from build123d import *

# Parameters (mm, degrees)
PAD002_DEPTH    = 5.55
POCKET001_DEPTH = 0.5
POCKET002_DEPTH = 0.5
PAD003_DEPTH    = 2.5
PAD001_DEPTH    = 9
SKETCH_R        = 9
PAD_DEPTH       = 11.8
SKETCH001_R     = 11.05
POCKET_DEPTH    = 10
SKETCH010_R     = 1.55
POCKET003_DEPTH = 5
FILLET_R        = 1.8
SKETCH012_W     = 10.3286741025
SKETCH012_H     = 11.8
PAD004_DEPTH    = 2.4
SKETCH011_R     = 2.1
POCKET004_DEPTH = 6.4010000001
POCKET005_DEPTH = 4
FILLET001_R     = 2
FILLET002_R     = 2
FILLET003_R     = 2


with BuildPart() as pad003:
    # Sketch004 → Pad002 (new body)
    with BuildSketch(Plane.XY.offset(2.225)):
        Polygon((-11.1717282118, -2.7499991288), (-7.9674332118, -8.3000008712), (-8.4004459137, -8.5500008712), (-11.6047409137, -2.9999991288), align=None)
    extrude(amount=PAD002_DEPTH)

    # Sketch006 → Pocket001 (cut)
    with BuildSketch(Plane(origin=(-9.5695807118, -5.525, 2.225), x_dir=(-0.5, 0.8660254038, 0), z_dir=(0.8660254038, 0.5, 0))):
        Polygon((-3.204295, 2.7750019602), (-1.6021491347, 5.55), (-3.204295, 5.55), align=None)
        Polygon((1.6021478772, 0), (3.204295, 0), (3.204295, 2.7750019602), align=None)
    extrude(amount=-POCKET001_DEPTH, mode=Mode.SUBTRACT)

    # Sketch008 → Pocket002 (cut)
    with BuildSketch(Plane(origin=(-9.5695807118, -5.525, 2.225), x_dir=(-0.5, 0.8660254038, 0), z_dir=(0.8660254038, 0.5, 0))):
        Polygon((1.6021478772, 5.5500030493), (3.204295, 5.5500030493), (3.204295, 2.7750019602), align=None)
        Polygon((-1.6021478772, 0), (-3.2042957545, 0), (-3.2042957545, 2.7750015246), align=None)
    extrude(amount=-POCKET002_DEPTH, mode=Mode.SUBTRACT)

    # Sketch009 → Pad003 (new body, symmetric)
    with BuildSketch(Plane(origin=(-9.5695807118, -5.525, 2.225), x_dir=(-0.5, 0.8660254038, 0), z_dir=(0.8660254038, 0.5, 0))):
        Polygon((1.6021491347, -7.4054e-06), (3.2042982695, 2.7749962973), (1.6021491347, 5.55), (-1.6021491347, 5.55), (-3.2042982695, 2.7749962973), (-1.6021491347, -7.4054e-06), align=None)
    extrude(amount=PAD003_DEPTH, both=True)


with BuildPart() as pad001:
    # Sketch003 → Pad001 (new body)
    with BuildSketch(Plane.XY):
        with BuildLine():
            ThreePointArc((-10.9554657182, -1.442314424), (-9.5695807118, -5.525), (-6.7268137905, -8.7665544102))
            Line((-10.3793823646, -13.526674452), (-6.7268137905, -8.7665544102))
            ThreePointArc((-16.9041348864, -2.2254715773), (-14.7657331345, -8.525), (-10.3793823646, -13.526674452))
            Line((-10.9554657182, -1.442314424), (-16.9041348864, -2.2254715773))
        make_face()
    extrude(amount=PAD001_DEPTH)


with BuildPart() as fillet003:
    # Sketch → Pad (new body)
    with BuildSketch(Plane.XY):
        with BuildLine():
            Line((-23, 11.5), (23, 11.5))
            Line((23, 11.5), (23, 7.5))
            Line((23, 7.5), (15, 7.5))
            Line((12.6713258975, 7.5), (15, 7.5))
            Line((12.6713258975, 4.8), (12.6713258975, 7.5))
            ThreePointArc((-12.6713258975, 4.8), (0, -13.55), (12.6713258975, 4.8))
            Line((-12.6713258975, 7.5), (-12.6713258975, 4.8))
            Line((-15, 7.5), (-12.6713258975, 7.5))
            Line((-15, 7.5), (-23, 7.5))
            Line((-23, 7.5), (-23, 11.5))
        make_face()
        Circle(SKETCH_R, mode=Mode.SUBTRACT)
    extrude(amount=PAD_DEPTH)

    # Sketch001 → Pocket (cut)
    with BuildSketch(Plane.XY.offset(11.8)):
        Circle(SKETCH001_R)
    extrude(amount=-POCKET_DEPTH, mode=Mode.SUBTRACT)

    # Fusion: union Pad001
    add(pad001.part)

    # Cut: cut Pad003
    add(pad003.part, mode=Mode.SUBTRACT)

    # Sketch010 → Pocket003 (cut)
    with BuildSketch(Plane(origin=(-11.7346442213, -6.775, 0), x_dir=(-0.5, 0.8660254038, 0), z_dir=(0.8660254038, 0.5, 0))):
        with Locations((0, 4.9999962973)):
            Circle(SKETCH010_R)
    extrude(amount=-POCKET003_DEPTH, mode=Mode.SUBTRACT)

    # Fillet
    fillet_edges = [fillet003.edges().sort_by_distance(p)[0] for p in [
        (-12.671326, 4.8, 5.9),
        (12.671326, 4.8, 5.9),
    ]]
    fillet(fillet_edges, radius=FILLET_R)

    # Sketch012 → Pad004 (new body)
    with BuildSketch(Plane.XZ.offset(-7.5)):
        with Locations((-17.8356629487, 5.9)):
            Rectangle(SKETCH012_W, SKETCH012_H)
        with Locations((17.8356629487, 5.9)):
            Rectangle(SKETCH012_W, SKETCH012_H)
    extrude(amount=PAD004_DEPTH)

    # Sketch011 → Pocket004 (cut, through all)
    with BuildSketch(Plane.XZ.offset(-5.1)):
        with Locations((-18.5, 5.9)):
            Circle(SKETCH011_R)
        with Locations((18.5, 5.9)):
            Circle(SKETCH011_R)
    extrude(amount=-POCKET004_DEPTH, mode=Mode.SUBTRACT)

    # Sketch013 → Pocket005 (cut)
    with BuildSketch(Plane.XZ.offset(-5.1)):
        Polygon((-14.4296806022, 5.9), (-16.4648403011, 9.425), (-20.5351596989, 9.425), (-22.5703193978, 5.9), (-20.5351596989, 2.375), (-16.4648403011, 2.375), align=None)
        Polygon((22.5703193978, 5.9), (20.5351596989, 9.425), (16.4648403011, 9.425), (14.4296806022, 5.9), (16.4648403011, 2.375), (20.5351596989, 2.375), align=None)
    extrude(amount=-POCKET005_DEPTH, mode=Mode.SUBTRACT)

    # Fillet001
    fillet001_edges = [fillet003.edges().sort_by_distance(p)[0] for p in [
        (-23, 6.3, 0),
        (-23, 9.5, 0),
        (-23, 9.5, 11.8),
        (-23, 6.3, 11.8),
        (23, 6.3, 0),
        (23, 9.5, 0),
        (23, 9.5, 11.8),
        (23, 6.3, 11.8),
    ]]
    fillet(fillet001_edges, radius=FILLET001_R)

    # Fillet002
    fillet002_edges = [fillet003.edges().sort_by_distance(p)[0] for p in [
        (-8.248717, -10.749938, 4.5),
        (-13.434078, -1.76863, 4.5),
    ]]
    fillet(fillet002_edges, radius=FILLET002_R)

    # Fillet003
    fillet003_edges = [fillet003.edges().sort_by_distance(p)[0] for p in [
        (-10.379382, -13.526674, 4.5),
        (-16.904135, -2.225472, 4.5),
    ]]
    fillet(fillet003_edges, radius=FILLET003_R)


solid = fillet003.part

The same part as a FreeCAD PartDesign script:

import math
import FreeCAD as App
import Part
import Sketcher
from FreeCAD import Vector
Q = App.Units.Quantity


def edges_at(feature, points):
    """Names of the edges that pass closest to the given points."""
    edges = feature.Shape.Edges
    near = lambda p: min(range(len(edges)), key=lambda i: edges[i].distToShape(Part.Vertex(*p))[0])
    return sorted({f"Edge{near(p) + 1}" for p in points})


def add_polygon(sketch, points):
    """Adds a closed chain of lines whose ends are joined by coincident constraints."""
    first, n = sketch.GeometryCount, len(points)
    for a, b in zip(points, points[1:] + points[:1]):
        sketch.addGeometry(Part.LineSegment(App.Vector(*a, 0), App.Vector(*b, 0)), False)
    for i in range(n):
        sketch.addConstraint(Sketcher.Constraint("Coincident", first + i, 2, first + (i + 1) % n, 1))

doc = App.newDocument("Part")
body = doc.addObject("PartDesign::Body", "Body")

# Sketch on XY plane
sketch1 = doc.addObject("Sketcher::SketchObject", "Sketch")
body.addObject(sketch1)
sketch1.AttachmentSupport = (doc.XY_Plane, [""])
sketch1.MapMode = "FlatFace"
sketch1.AttachmentOffset = App.Placement(Vector(0, 0, 2.225), App.Rotation())
add_polygon(sketch1, [(-8, -8.3), (-11.2, -2.7), (-11.6, -3), (-8.4, -8.6)])  # lines 0-3
sketch1.addConstraint([
    Sketcher.Constraint("Perpendicular", 0, 1),
    Sketcher.Constraint("Perpendicular", 1, 2),
    Sketcher.Constraint("Perpendicular", 2, 3),
    Sketcher.Constraint("Angle", 0, Q("120 deg")),
    Sketcher.Constraint("DistanceY", 1, 2, -1, 1, Q("2.999999 mm")),
    Sketcher.Constraint("Distance", 1, Q("0.5 mm")),
    Sketcher.Constraint("DistanceY", 3, 2, -1, 1, Q("8.300001 mm")),
    Sketcher.Constraint("DistanceX", 0, 2, -1, 1, Q("11.171728 mm")),
])
pad1 = doc.addObject("PartDesign::Pad", "Pad")
body.addObject(pad1)
pad1.Profile = sketch1
pad1.Length = 5.55

# Sketch on an angled plane
sketch2 = doc.addObject("Sketcher::SketchObject", "Sketch001")
body.addObject(sketch2)
sketch2.Placement = App.Placement(Vector(-9.569581, -5.525, 2.225), App.Rotation(Vector(-0.5, 0.866025404, 0), Vector(0, 0, 1), Vector(0.866025404, 0.5, 0), "ZXY"))
add_polygon(sketch2, [(-3.2, 2.8), (-1.6, 5.6), (-3.2, 5.6)])  # lines 0-2
add_polygon(sketch2, [(1.6, 0), (3.2, 0), (3.2, 2.8)])  # lines 3-5
sketch2.addConstraint([
    Sketcher.Constraint("Horizontal", 1),
    Sketcher.Constraint("Vertical", 2),
    Sketcher.Constraint("Horizontal", 3),
    Sketcher.Constraint("Vertical", 4),
    Sketcher.Constraint("Symmetric", 2, 2, 4, 2, -2),
    Sketcher.Constraint("PointOnObject", 3, 2, -1),
    Sketcher.Constraint("Parallel", 0, 5),
    Sketcher.Constraint("Equal", 1, 3),
    Sketcher.Constraint("Angle", 0, Q("60 deg")),
    Sketcher.Constraint("DistanceY", 2, 2, 2, 1, Q("2.774998 mm")),
    Sketcher.Constraint("DistanceX", 0, 2, -1, 1, Q("1.602149 mm")),
])
pocket1 = doc.addObject("PartDesign::Pocket", "Pocket")
body.addObject(pocket1)
pocket1.Profile = sketch2
pocket1.Length = 0.5

# Sketch on an angled plane
sketch3 = doc.addObject("Sketcher::SketchObject", "Sketch002")
body.addObject(sketch3)
sketch3.Placement = App.Placement(Vector(-9.569581, -5.525, 2.225), App.Rotation(Vector(-0.5, 0.866025404, 0), Vector(0, 0, 1), Vector(0.866025404, 0.5, 0), "ZXY"))
add_polygon(sketch3, [(3.2, 5.6), (1.6, 5.6), (3.2, 2.8)])  # lines 0-2
add_polygon(sketch3, [(-3.2, 0), (-1.6, 0), (-3.2, 2.8)])  # lines 3-5
sketch3.addConstraint([
    Sketcher.Constraint("Horizontal", 0),
    Sketcher.Constraint("Vertical", 2),
    Sketcher.Constraint("Horizontal", 3),
    Sketcher.Constraint("Vertical", 5),
    Sketcher.Constraint("Symmetric", 1, 2, 4, 2, -2),
    Sketcher.Constraint("PointOnObject", 3, 2, -1),
    Sketcher.Constraint("Parallel", 1, 4),
    Sketcher.Constraint("Equal", 0, 3),
    Sketcher.Constraint("Angle", 1, Q("-60.000008 deg")),
    Sketcher.Constraint("DistanceY", 2, 1, 2, 2, Q("2.775001 mm")),
    Sketcher.Constraint("DistanceX", 4, 2, 1, 2, Q("6.408591 mm")),
])
pocket2 = doc.addObject("PartDesign::Pocket", "Pocket001")
body.addObject(pocket2)
pocket2.Profile = sketch3
pocket2.Length = 0.5

# Sketch on an angled plane
sketch4 = doc.addObject("Sketcher::SketchObject", "Sketch003")
body.addObject(sketch4)
sketch4.Placement = App.Placement(Vector(-9.569581, -5.525, 2.225), App.Rotation(Vector(-0.5, 0.866025404, 0), Vector(0, 0, 1), Vector(0.866025404, 0.5, 0), "ZXY"))
add_polygon(sketch4, [(1.6, 0), (3.2, 2.8), (1.6, 5.6), (-1.6, 5.6), (-3.2, 2.8), (-1.6, 0)])  # lines 0-5
sketch4.addConstraint([
    Sketcher.Constraint("Horizontal", 2),
    Sketcher.Constraint("Horizontal", 5),
    Sketcher.Constraint("Symmetric", 0, 2, 3, 2, -2),
    Sketcher.Constraint("Parallel", 0, 3),
    Sketcher.Constraint("Parallel", 1, 4),
    Sketcher.Constraint("Vertical", 2, 2, 4, 2),
    Sketcher.Constraint("Vertical", 1, 2, 5, 2),
    Sketcher.Constraint("Angle", 0, Q("60 deg")),
    Sketcher.Constraint("DistanceY", -1, 1, 1, 2, Q("5.55 mm")),
    Sketcher.Constraint("DistanceX", 2, 2, 2, 1, Q("3.204298 mm")),
    Sketcher.Constraint("Distance", 0, Q("3.204298 mm")),
])
pad2 = doc.addObject("PartDesign::Pad", "Pad001")
body.addObject(pad2)
pad2.Profile = sketch4
pad2.Length = 5
pad2.Midplane = True
body2 = doc.addObject("PartDesign::Body", "Body001")

# Sketch on XY plane
sketch5 = doc.addObject("Sketcher::SketchObject", "Sketch004")
body2.addObject(sketch5)
sketch5.AttachmentSupport = (doc.getObject("XY_Plane001"), [""])
sketch5.MapMode = "FlatFace"
sketch5.addGeometry([
    Part.ArcOfCircle(Part.Circle(Vector(0, 0, 0), Vector(0, 0, 1), 11), math.radians(-173), math.radians(-128)),
    Part.LineSegment(Vector(-11, -1, 0), Vector(-17, -2, 0)),
    Part.ArcOfCircle(Part.Circle(Vector(0, 0, 0), Vector(0, 0, 1), 17), math.radians(-173), math.radians(-128)),
    Part.LineSegment(Vector(-10, -14, 0), Vector(-7, -9, 0)),
], False)
sketch5.addConstraint([
    Sketcher.Constraint("Coincident", 0, 1, 1, 1),
    Sketcher.Constraint("Coincident", 1, 2, 2, 1),
    Sketcher.Constraint("Coincident", 2, 2, 3, 1),
    Sketcher.Constraint("Coincident", 3, 2, 0, 2),
    Sketcher.Constraint("Coincident", 0, 3, -1, 1),
    Sketcher.Constraint("Coincident", 2, 3, -1, 1),
    Sketcher.Constraint("Radius", 0, Q("11.05 mm")),
    Sketcher.Constraint("Radius", 2, Q("17.05 mm")),
    Sketcher.Constraint("Angle", 1, Q("-172.5 deg")),
    Sketcher.Constraint("Angle", 3, Q("52.5 deg")),
    Sketcher.Constraint("DistanceY", 1, 2, -1, 1, Q("2.225472 mm")),
    Sketcher.Constraint("DistanceY", 2, 2, 0, 1, Q("12.08436 mm")),
])
pad3 = doc.addObject("PartDesign::Pad", "Pad002")
body2.addObject(pad3)
pad3.Profile = sketch5
pad3.Length = 9
body3 = doc.addObject("PartDesign::Body", "Body002")

# Sketch on XY plane
sketch6 = doc.addObject("Sketcher::SketchObject", "Sketch005")
body3.addObject(sketch6)
sketch6.AttachmentSupport = (doc.getObject("XY_Plane002"), [""])
sketch6.MapMode = "FlatFace"
sketch6.addGeometry([
    Part.LineSegment(Vector(23, 11.5, 0), Vector(-23, 11.5, 0)),  # 0
    Part.LineSegment(Vector(-23, 11.5, 0), Vector(-23, 7.5, 0)),  # 1
    Part.LineSegment(Vector(-23, 7.5, 0), Vector(-12.7, 7.5, 0)),  # 2
    Part.LineSegment(Vector(-12.7, 7.5, 0), Vector(-12.7, 4.8, 0)),  # 3
    Part.ArcOfCircle(Part.Circle(Vector(0, 0, 0), Vector(0, 0, 1), 13.6), math.radians(159), math.radians(381)),  # 4
    Part.LineSegment(Vector(12.7, 4.8, 0), Vector(12.7, 7.5, 0)),  # 5
    Part.LineSegment(Vector(12.7, 7.5, 0), Vector(23, 7.5, 0)),  # 6
    Part.LineSegment(Vector(23, 7.5, 0), Vector(23, 11.5, 0)),  # 7
    Part.Circle(Vector(0, 0, 0), Vector(0, 0, 1), 9),  # 8
], False)
sketch6.addConstraint([
    Sketcher.Constraint("Coincident", 0, 2, 1, 1),
    Sketcher.Constraint("Coincident", 1, 2, 2, 1),
    Sketcher.Constraint("Coincident", 2, 2, 3, 1),
    Sketcher.Constraint("Coincident", 3, 2, 4, 1),
    Sketcher.Constraint("Coincident", 4, 2, 5, 1),
    Sketcher.Constraint("Coincident", 5, 2, 6, 1),
    Sketcher.Constraint("Coincident", 6, 2, 7, 1),
    Sketcher.Constraint("Coincident", 7, 2, 0, 1),
    Sketcher.Constraint("Horizontal", 0),
    Sketcher.Constraint("Vertical", 1),
    Sketcher.Constraint("Horizontal", 2),
    Sketcher.Constraint("Vertical", 3),
    Sketcher.Constraint("Vertical", 5),
    Sketcher.Constraint("Horizontal", 6),
    Sketcher.Constraint("Vertical", 7),
    Sketcher.Constraint("Coincident", 4, 3, -1, 1),
    Sketcher.Constraint("Coincident", 8, 3, -1, 1),
    Sketcher.Constraint("Symmetric", 2, 2, 5, 2, -2),
    Sketcher.Constraint("Equal", 2, 6),
    Sketcher.Constraint("Diameter", 8, Q("18 mm")),
    Sketcher.Constraint("DistanceX", 0, 2, 0, 1, Q("46 mm")),
    Sketcher.Constraint("DistanceY", 1, 2, 1, 1, Q("4 mm")),
    Sketcher.Constraint("Radius", 4, Q("13.55 mm")),
    Sketcher.Constraint("DistanceY", 3, 2, 3, 1, Q("2.7 mm")),
    Sketcher.Constraint("DistanceY", -1, 1, 0, 2, Q("11.5 mm")),
])
pad4 = doc.addObject("PartDesign::Pad", "Pad003")
body3.addObject(pad4)
pad4.Profile = sketch6
pad4.Length = 11.8

# Sketch on XY plane
sketch7 = doc.addObject("Sketcher::SketchObject", "Sketch006")
body3.addObject(sketch7)
sketch7.AttachmentSupport = (doc.getObject("XY_Plane002"), [""])
sketch7.MapMode = "FlatFace"
sketch7.AttachmentOffset = App.Placement(Vector(0, 0, 11.8), App.Rotation())
sketch7.addGeometry(Part.Circle(Vector(0, 0, 0), Vector(0, 0, 1), 11), False)
sketch7.addConstraint([
    Sketcher.Constraint("Coincident", 0, 3, -1, 1),
    Sketcher.Constraint("Diameter", 0, Q("22.1 mm")),
])
pocket3 = doc.addObject("PartDesign::Pocket", "Pocket002")
body3.addObject(pocket3)
pocket3.Profile = sketch7
pocket3.Length = 10
doc.recompute()

boolean = doc.addObject("PartDesign::Boolean", "Boolean")
body3.addObject(boolean)
boolean.Type = "Fuse"
boolean.addObjects([body2])
doc.recompute()

boolean2 = doc.addObject("PartDesign::Boolean", "Boolean001")
body3.addObject(boolean2)
boolean2.Type = "Cut"
boolean2.addObjects([body])

# Sketch on an angled plane
sketch8 = doc.addObject("Sketcher::SketchObject", "Sketch007")
body3.addObject(sketch8)
sketch8.Placement = App.Placement(Vector(-11.734644, -6.775, 0), App.Rotation(Vector(-0.5, 0.866025404, 0), Vector(0, 0, 1), Vector(0.866025404, 0.5, 0), "ZXY"))
sketch8.addGeometry(Part.Circle(Vector(0, 5, 0), Vector(0, 0, 1), 1.6), False)
sketch8.addConstraint([
    Sketcher.Constraint("PointOnObject", 0, 3, -2),
    Sketcher.Constraint("Diameter", 0, Q("3.1 mm")),
    Sketcher.Constraint("DistanceY", -1, 1, 0, 3, Q("4.999996 mm")),
])
pocket4 = doc.addObject("PartDesign::Pocket", "Pocket003")
body3.addObject(pocket4)
pocket4.Profile = sketch8
pocket4.Length = 5
doc.recompute()

fillet = doc.addObject("PartDesign::Fillet", "Fillet")
body3.addObject(fillet)
fillet.Base = (pocket4, edges_at(pocket4, [(-12.671, 4.8, 5.9), (12.671, 4.8, 5.9)]))
fillet.Radius = 1.8

# Sketch on XZ plane
sketch9 = doc.addObject("Sketcher::SketchObject", "Sketch008")
body3.addObject(sketch9)
sketch9.AttachmentSupport = (doc.getObject("XZ_Plane002"), [""])
sketch9.MapMode = "FlatFace"
sketch9.AttachmentOffset = App.Placement(Vector(0, 0, -7.5), App.Rotation())
add_polygon(sketch9, [(-23, 12), (-23, 0), (-13, 0), (-13, 12)])  # lines 0-3
add_polygon(sketch9, [(13, 12), (13, 0), (23, 0), (23, 12)])  # lines 4-7
sketch9.addConstraint([
    Sketcher.Constraint("Vertical", 0),
    Sketcher.Constraint("Horizontal", 1),
    Sketcher.Constraint("Vertical", 2),
    Sketcher.Constraint("Horizontal", 3),
    Sketcher.Constraint("Vertical", 4),
    Sketcher.Constraint("Horizontal", 5),
    Sketcher.Constraint("Vertical", 6),
    Sketcher.Constraint("Horizontal", 7),
    Sketcher.Constraint("Symmetric", 1, 2, 4, 2, -1, 1),
    Sketcher.Constraint("Symmetric", 0, 2, 5, 2, -2),
    Sketcher.Constraint("Horizontal", 3, 2, 6, 2),
    Sketcher.Constraint("DistanceY", 0, 2, 0, 1, Q("11.8 mm")),
    Sketcher.Constraint("DistanceX", 0, 2, -1, 1, Q("23 mm")),
    Sketcher.Constraint("DistanceX", 1, 1, 1, 2, Q("10.328674 mm")),
])
pad5 = doc.addObject("PartDesign::Pad", "Pad004")
body3.addObject(pad5)
pad5.Profile = sketch9
pad5.Length = 2.4

# Sketch on XZ plane
sketch10 = doc.addObject("Sketcher::SketchObject", "Sketch009")
body3.addObject(sketch10)
sketch10.AttachmentSupport = (doc.getObject("XZ_Plane002"), [""])
sketch10.MapMode = "FlatFace"
sketch10.AttachmentOffset = App.Placement(Vector(0, 0, -5.1), App.Rotation())
sketch10.addGeometry([
    Part.Circle(Vector(-18.5, 5.9, 0), Vector(0, 0, 1), 2.1),
    Part.Circle(Vector(18.5, 5.9, 0), Vector(0, 0, 1), 2.1),
], False)
sketch10.addConstraint([
    Sketcher.Constraint("Equal", 0, 1),
    Sketcher.Constraint("Symmetric", 0, 3, 1, 3, -2),
    Sketcher.Constraint("Diameter", 0, Q("4.2 mm")),
    Sketcher.Constraint("DistanceX", 0, 3, 1, 3, Q("37 mm")),
    Sketcher.Constraint("DistanceY", -1, 1, 0, 3, Q("5.9 mm")),
])
pocket5 = doc.addObject("PartDesign::Pocket", "Pocket004")
body3.addObject(pocket5)
pocket5.Profile = sketch10
pocket5.Type = "ThroughAll"

# Sketch on XZ plane
sketch11 = doc.addObject("Sketcher::SketchObject", "Sketch010")
body3.addObject(sketch11)
sketch11.AttachmentSupport = (doc.getObject("XZ_Plane002"), [""])
sketch11.MapMode = "FlatFace"
sketch11.AttachmentOffset = App.Placement(Vector(0, 0, -5.1), App.Rotation())
add_polygon(sketch11, [(-14.4, 5.9), (-16.5, 9.4), (-20.5, 9.4), (-22.6, 5.9), (-20.5, 2.4), (-16.5, 2.4)])  # lines 0-5
add_polygon(sketch11, [(22.6, 5.9), (20.5, 9.4), (16.5, 9.4), (14.4, 5.9), (16.5, 2.4), (20.5, 2.4)])  # lines 6-11
sketch11.addConstraint([
    Sketcher.Constraint("Horizontal", 1),
    Sketcher.Constraint("Horizontal", 4),
    Sketcher.Constraint("Horizontal", 7),
    Sketcher.Constraint("Horizontal", 10),
    Sketcher.Constraint("Symmetric", 1, 2, 6, 2, -2),
    Sketcher.Constraint("Symmetric", 5, 2, 8, 2, -2),
    Sketcher.Constraint("Symmetric", 4, 2, 9, 2, -2),
    Sketcher.Constraint("Symmetric", 2, 2, 11, 2, -2),
    Sketcher.Constraint("Parallel", 0, 3),
    Sketcher.Constraint("Parallel", 2, 5),
    Sketcher.Constraint("Parallel", 3, 6),
    Sketcher.Constraint("Parallel", 5, 8),
    Sketcher.Constraint("Parallel", 8, 11),
    Sketcher.Constraint("Horizontal", 2, 2, 5, 2),
    Sketcher.Constraint("Vertical", 1, 2, 3, 2),
    Sketcher.Constraint("Angle", 0, Q("120 deg")),
    Sketcher.Constraint("DistanceX", 0, 2, 6, 2, Q("37 mm")),
    Sketcher.Constraint("DistanceY", -1, 1, 2, 2, Q("5.9 mm")),
    Sketcher.Constraint("DistanceY", 3, 2, 1, 2, Q("7.05 mm")),
    Sketcher.Constraint("DistanceX", 1, 2, 1, 1, Q("4.070319 mm")),
])
pocket6 = doc.addObject("PartDesign::Pocket", "Pocket005")
body3.addObject(pocket6)
pocket6.Profile = sketch11
pocket6.Length = 4
doc.recompute()

fillet2 = doc.addObject("PartDesign::Fillet", "Fillet001")
body3.addObject(fillet2)
fillet2.Base = (pocket6, edges_at(pocket6, [
    (-23, 6.3, 0),
    (-23, 9.5, 0),
    (-23, 9.5, 11.8),
    (-23, 6.3, 11.8),
    (23, 6.3, 0),
    (23, 9.5, 0),
    (23, 9.5, 11.8),
    (23, 6.3, 11.8),
]))
fillet2.Radius = 2
doc.recompute()

fillet3 = doc.addObject("PartDesign::Fillet", "Fillet002")
body3.addObject(fillet3)
fillet3.Base = (fillet2, edges_at(fillet2, [(-8.249, -10.75, 4.5), (-13.434, -1.769, 4.5)]))
fillet3.Radius = 2
doc.recompute()

fillet4 = doc.addObject("PartDesign::Fillet", "Fillet003")
body3.addObject(fillet4)
fillet4.Base = (fillet3, edges_at(fillet3, [(-10.379, -13.527, 4.5), (-16.904, -2.225, 4.5)]))
fillet4.Radius = 2

doc.recompute()
